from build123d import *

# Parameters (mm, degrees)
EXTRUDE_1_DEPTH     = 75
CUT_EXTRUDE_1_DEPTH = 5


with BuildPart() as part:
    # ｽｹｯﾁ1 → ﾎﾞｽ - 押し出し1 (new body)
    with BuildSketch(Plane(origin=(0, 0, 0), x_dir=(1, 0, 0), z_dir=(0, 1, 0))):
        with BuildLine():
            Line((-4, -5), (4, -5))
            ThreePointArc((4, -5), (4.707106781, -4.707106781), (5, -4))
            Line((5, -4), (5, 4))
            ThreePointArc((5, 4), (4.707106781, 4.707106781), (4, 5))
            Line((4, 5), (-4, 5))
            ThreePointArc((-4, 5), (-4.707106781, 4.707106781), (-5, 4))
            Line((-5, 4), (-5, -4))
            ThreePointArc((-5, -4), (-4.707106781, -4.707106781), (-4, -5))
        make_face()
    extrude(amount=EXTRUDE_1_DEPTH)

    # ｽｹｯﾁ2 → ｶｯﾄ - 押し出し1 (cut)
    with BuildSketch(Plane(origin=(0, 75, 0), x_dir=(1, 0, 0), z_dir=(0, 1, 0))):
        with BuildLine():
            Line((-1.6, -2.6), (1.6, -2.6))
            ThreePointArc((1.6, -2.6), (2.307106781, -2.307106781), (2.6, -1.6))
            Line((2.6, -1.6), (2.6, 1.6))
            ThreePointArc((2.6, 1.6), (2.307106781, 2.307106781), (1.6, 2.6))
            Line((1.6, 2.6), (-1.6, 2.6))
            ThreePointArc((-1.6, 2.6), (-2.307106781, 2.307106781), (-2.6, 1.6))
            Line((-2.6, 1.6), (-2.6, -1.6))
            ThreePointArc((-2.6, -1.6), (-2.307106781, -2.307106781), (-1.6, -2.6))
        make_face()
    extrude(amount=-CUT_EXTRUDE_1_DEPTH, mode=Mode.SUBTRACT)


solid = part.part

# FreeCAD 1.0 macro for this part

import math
import FreeCAD as App
import Part
import Sketcher
from FreeCAD import Vector
Q = App.Units.Quantity

doc = App.newDocument("Part")
params = doc.addObject("Spreadsheet::Sheet", "Params")
for row, (alias, value) in enumerate([
    ("sketch1_radius", "1 mm"),
    ("sketch1_width", "8 mm"),
    ("pad1_length", "75 mm"),
    ("sketch2_radius", "1 mm"),
    ("sketch2_width", "3.2 mm"),
    ("pocket1_length", "5 mm"),
], start=1):
    params.set(f"A{row}", alias)
    params.set(f"B{row}", "=" + value)
    params.setAlias(f"B{row}", alias)

body = doc.addObject("PartDesign::Body", "Body")

sketch1 = body.newObject("Sketcher::SketchObject", "Sketch")
sketch1.AttachmentSupport = (doc.getObject("XZ_Plane"), [""])
sketch1.MapMode = "FlatFace"
sketch1.addGeometry([
    Part.LineSegment(Vector(-4, 5, 0), Vector(4, 5, 0)),
    Part.ArcOfCircle(Part.Circle(Vector(4, 4, 0), Vector(0, 0, 1), 1), math.radians(0), math.radians(90)),
    Part.LineSegment(Vector(5, 4, 0), Vector(5, -4, 0)),
    Part.ArcOfCircle(Part.Circle(Vector(4, -4, 0), Vector(0, 0, 1), 1), math.radians(-90), math.radians(0)),
    Part.LineSegment(Vector(4, -5, 0), Vector(-4, -5, 0)),
    Part.ArcOfCircle(Part.Circle(Vector(-4, -4, 0), Vector(0, 0, 1), 1), math.radians(-180), math.radians(-90)),
    Part.LineSegment(Vector(-5, -4, 0), Vector(-5, 4, 0)),
    Part.ArcOfCircle(Part.Circle(Vector(-4, 4, 0), Vector(0, 0, 1), 1), math.radians(90), math.radians(180)),
], False)
sketch1.addConstraint([
    Sketcher.Constraint("Tangent", 0, 2, 1, 2),
    Sketcher.Constraint("Tangent", 1, 1, 2, 1),
    Sketcher.Constraint("Tangent", 2, 2, 3, 2),
    Sketcher.Constraint("Tangent", 3, 1, 4, 1),
    Sketcher.Constraint("Tangent", 4, 2, 5, 2),
    Sketcher.Constraint("Tangent", 5, 1, 6, 1),
    Sketcher.Constraint("Tangent", 6, 2, 7, 2),
    Sketcher.Constraint("Tangent", 7, 1, 0, 1),
    Sketcher.Constraint("Horizontal", 0),
    Sketcher.Constraint("Vertical", 2),
    Sketcher.Constraint("Horizontal", 4),
    Sketcher.Constraint("Vertical", 6),
    Sketcher.Constraint("Equal", 1, 3),
    Sketcher.Constraint("Equal", 3, 5),
    Sketcher.Constraint("Equal", 5, 7),
    Sketcher.Constraint("Symmetric", 1, 3, 5, 3, -1, 1),
    Sketcher.Constraint("Equal", 4, 2),
    Sketcher.Constraint("Radius", 1, Q("1 mm")),
    Sketcher.Constraint("DistanceX", 0, 1, 0, 2, Q("8 mm")),
])
sketch1.setExpression("Constraints[17]", "Params.sketch1_radius")
sketch1.setExpression("Constraints[18]", "Params.sketch1_width")
pad1 = body.newObject("PartDesign::Pad", "Pad")
pad1.Profile = sketch1
pad1.setExpression("Length", "Params.pad1_length")
pad1.Reversed = True

sketch2 = body.newObject("Sketcher::SketchObject", "Sketch001")
sketch2.AttachmentSupport = (doc.getObject("XZ_Plane"), [""])
sketch2.MapMode = "FlatFace"
sketch2.AttachmentOffset = App.Placement(Vector(0, 0, -75), App.Rotation())
sketch2.addGeometry([
    Part.LineSegment(Vector(-1.6, 2.6, 0), Vector(1.6, 2.6, 0)),
    Part.ArcOfCircle(Part.Circle(Vector(1.6, 1.6, 0), Vector(0, 0, 1), 1), math.radians(0), math.radians(90)),
    Part.LineSegment(Vector(2.6, 1.6, 0), Vector(2.6, -1.6, 0)),
    Part.ArcOfCircle(Part.Circle(Vector(1.6, -1.6, 0), Vector(0, 0, 1), 1), math.radians(-90), math.radians(0)),
    Part.LineSegment(Vector(1.6, -2.6, 0), Vector(-1.6, -2.6, 0)),
    Part.ArcOfCircle(Part.Circle(Vector(-1.6, -1.6, 0), Vector(0, 0, 1), 1), math.radians(-180), math.radians(-90)),
    Part.LineSegment(Vector(-2.6, -1.6, 0), Vector(-2.6, 1.6, 0)),
    Part.ArcOfCircle(Part.Circle(Vector(-1.6, 1.6, 0), Vector(0, 0, 1), 1), math.radians(90), math.radians(180)),
], False)
sketch2.addConstraint([
    Sketcher.Constraint("Tangent", 0, 2, 1, 2),
    Sketcher.Constraint("Tangent", 1, 1, 2, 1),
    Sketcher.Constraint("Tangent", 2, 2, 3, 2),
    Sketcher.Constraint("Tangent", 3, 1, 4, 1),
    Sketcher.Constraint("Tangent", 4, 2, 5, 2),
    Sketcher.Constraint("Tangent", 5, 1, 6, 1),
    Sketcher.Constraint("Tangent", 6, 2, 7, 2),
    Sketcher.Constraint("Tangent", 7, 1, 0, 1),
    Sketcher.Constraint("Horizontal", 0),
    Sketcher.Constraint("Vertical", 2),
    Sketcher.Constraint("Horizontal", 4),
    Sketcher.Constraint("Vertical", 6),
    Sketcher.Constraint("Equal", 1, 3),
    Sketcher.Constraint("Equal", 3, 5),
    Sketcher.Constraint("Equal", 5, 7),
    Sketcher.Constraint("Symmetric", 1, 3, 5, 3, -1, 1),
    Sketcher.Constraint("Equal", 4, 2),
    Sketcher.Constraint("Radius", 1, Q("1 mm")),
    Sketcher.Constraint("DistanceX", 0, 1, 0, 2, Q("3.2 mm")),
])
sketch2.setExpression("Constraints[17]", "Params.sketch2_radius")
sketch2.setExpression("Constraints[18]", "Params.sketch2_width")
pocket1 = body.newObject("PartDesign::Pocket", "Pocket")
pocket1.Profile = sketch2
pocket1.setExpression("Length", "Params.pocket1_length")
pocket1.Reversed = True

doc.recompute()
